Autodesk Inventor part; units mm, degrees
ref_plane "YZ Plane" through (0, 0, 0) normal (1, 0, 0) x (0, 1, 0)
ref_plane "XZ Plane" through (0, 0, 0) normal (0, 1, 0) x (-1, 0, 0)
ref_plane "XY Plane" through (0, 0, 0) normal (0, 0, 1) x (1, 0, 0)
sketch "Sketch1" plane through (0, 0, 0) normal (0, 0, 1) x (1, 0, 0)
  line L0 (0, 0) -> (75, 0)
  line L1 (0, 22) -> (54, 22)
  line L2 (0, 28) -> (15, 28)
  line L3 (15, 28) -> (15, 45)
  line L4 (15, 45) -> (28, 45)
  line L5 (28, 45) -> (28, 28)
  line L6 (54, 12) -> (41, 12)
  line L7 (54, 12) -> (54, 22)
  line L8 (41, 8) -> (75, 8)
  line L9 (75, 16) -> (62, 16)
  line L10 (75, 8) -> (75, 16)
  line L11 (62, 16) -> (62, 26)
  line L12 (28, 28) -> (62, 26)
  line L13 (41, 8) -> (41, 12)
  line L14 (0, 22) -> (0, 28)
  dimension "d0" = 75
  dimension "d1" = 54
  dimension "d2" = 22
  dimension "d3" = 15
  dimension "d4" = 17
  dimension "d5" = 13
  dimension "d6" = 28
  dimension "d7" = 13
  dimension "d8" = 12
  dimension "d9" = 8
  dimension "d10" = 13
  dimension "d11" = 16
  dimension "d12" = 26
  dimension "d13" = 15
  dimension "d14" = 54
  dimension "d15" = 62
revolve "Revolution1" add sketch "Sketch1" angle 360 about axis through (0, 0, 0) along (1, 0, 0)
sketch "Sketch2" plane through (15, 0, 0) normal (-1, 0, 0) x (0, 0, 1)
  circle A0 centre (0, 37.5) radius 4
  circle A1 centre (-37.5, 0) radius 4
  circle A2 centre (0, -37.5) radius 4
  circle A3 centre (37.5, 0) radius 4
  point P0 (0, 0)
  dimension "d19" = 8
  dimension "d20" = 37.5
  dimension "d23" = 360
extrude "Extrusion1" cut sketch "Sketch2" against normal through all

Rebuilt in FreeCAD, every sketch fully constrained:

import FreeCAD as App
import Part
import Sketcher

doc = App.newDocument("Part")
params = doc.addObject("Spreadsheet::Sheet", "Params")
for row, (alias, value) in enumerate([
    ("sketch1_width", "54 mm"),
    ("sketch1_width2", "13 mm"),
    ("sketch1_width3", "15 mm"),
    ("sketch1_height", "8 mm"),
    ("sketch1_height2", "17 mm"),
    ("revolution_angle", "360 deg"),
    ("sketch2_diameter", "8 mm"),
], start=1):
    params.set(f"A{row}", alias)
    params.set(f"B{row}", "=" + value)
    params.setAlias(f"B{row}", alias)

body = doc.addObject("PartDesign::Body", "Body")

# Sketch on XY plane
sketch1 = doc.addObject("Sketcher::SketchObject", "Sketch")
body.addObject(sketch1)
sketch1.AttachmentSupport = (doc.XY_Plane, [""])
sketch1.MapMode = "FlatFace"
sketch1.addGeometry([
    Part.LineSegment(App.Vector(0, 28, 0), App.Vector(0, 22, 0)),  # 0
    Part.LineSegment(App.Vector(0, 22, 0), App.Vector(54, 22, 0)),  # 1
    Part.LineSegment(App.Vector(54, 22, 0), App.Vector(54, 12, 0)),  # 2
    Part.LineSegment(App.Vector(54, 12, 0), App.Vector(41, 12, 0)),  # 3
    Part.LineSegment(App.Vector(41, 12, 0), App.Vector(41, 8, 0)),  # 4
    Part.LineSegment(App.Vector(41, 8, 0), App.Vector(75, 8, 0)),  # 5
    Part.LineSegment(App.Vector(75, 8, 0), App.Vector(75, 16, 0)),  # 6
    Part.LineSegment(App.Vector(75, 16, 0), App.Vector(62, 16, 0)),  # 7
    Part.LineSegment(App.Vector(62, 16, 0), App.Vector(62, 26, 0)),  # 8
    Part.LineSegment(App.Vector(62, 26, 0), App.Vector(28, 28, 0)),  # 9
    Part.LineSegment(App.Vector(28, 28, 0), App.Vector(28, 45, 0)),  # 10
    Part.LineSegment(App.Vector(28, 45, 0), App.Vector(15, 45, 0)),  # 11
    Part.LineSegment(App.Vector(15, 45, 0), App.Vector(15, 28, 0)),  # 12
    Part.LineSegment(App.Vector(15, 28, 0), App.Vector(0, 28, 0)),  # 13
], False)
sketch1.addConstraint([
    Sketcher.Constraint("Coincident", 0, 2, 1, 1),
    Sketcher.Constraint("Coincident", 1, 2, 2, 1),
    Sketcher.Constraint("Coincident", 2, 2, 3, 1),
    Sketcher.Constraint("Coincident", 3, 2, 4, 1),
    Sketcher.Constraint("Coincident", 4, 2, 5, 1),
    Sketcher.Constraint("Coincident", 5, 2, 6, 1),
    Sketcher.Constraint("Coincident", 6, 2, 7, 1),
    Sketcher.Constraint("Coincident", 7, 2, 8, 1),
    Sketcher.Constraint("Coincident", 8, 2, 9, 1),
    Sketcher.Constraint("Coincident", 9, 2, 10, 1),
    Sketcher.Constraint("Coincident", 10, 2, 11, 1),
    Sketcher.Constraint("Coincident", 11, 2, 12, 1),
    Sketcher.Constraint("Coincident", 12, 2, 13, 1),
    Sketcher.Constraint("Coincident", 13, 2, 0, 1),
    Sketcher.Constraint("Vertical", 0),
    Sketcher.Constraint("Horizontal", 1),
    Sketcher.Constraint("Vertical", 2),
    Sketcher.Constraint("Horizontal", 3),
    Sketcher.Constraint("Vertical", 4),
    Sketcher.Constraint("Horizontal", 5),
    Sketcher.Constraint("Vertical", 6),
    Sketcher.Constraint("Horizontal", 7),
    Sketcher.Constraint("Vertical", 8),
    Sketcher.Constraint("Vertical", 10),
    Sketcher.Constraint("Horizontal", 11),
    Sketcher.Constraint("Vertical", 12),
    Sketcher.Constraint("Horizontal", 13),
    Sketcher.Constraint("PointOnObject", 0, 2, -2),
    Sketcher.Constraint("Horizontal", 9, 2, 12, 2),
    Sketcher.Constraint("Equal", 3, 7),
    Sketcher.Constraint("Equal", 7, 11),
    Sketcher.Constraint("Equal", 2, 8),
    Sketcher.Constraint("DistanceX", 1, 1, 1, 2, 54.0),
    Sketcher.Constraint("DistanceX", 3, 2, 3, 1, 13.0),
    Sketcher.Constraint("DistanceX", 13, 2, 13, 1, 15.0),
    Sketcher.Constraint("DistanceY", 6, 1, 6, 2, 8.0),
    Sketcher.Constraint("DistanceY", 10, 1, 10, 2, 17.0),
    Sketcher.Constraint("DistanceY", -1, 1, 0, 2, 22.0),
    Sketcher.Constraint("DistanceY", -1, 1, 2, 2, 12.0),
    Sketcher.Constraint("DistanceY", -1, 1, 4, 2, 8.0),
    Sketcher.Constraint("DistanceX", -1, 1, 5, 2, 75.0),
    Sketcher.Constraint("DistanceY", -1, 1, 9, 2, 28.0),
])
sketch1.setExpression("Constraints[32]", "Params.sketch1_width")
sketch1.setExpression("Constraints[33]", "Params.sketch1_width2")
sketch1.setExpression("Constraints[34]", "Params.sketch1_width3")
sketch1.setExpression("Constraints[35]", "Params.sketch1_height")
sketch1.setExpression("Constraints[36]", "Params.sketch1_height2")
revolution = doc.addObject("PartDesign::Revolution", "Revolution")
body.addObject(revolution)
revolution.Profile = sketch1
revolution.ReferenceAxis = (sketch1, ["H_Axis"])
revolution.setExpression("Angle", "Params.revolution_angle")

# Sketch on YZ plane
sketch2 = doc.addObject("Sketcher::SketchObject", "Sketch001")
body.addObject(sketch2)
sketch2.AttachmentSupport = (doc.YZ_Plane, [""])
sketch2.MapMode = "FlatFace"
sketch2.AttachmentOffset = App.Placement(App.Vector(0, 0, 15), App.Rotation())
sketch2.addGeometry([
    Part.Circle(App.Vector(37.5, 0, 0), App.Vector(0, 0, 1), 4),
    Part.Circle(App.Vector(0, -37.5, 0), App.Vector(0, 0, 1), 4),
    Part.Circle(App.Vector(-37.5, 0, 0), App.Vector(0, 0, 1), 4),
    Part.Circle(App.Vector(0, 37.5, 0), App.Vector(0, 0, 1), 4),
], False)
sketch2.addConstraint([
    Sketcher.Constraint("Equal", 0, 1),
    Sketcher.Constraint("Equal", 1, 2),
    Sketcher.Constraint("Equal", 2, 3),
    Sketcher.Constraint("Symmetric", 0, 3, 2, 3, -1, 1),
    Sketcher.Constraint("Symmetric", 1, 3, 3, 3, -1, 1),
    Sketcher.Constraint("PointOnObject", 0, 3, -1),
    Sketcher.Constraint("PointOnObject", 1, 3, -2),
    Sketcher.Constraint("Diameter", 0, 8.0),
    Sketcher.Constraint("DistanceX", -1, 1, 0, 3, 37.5),
    Sketcher.Constraint("DistanceY", 1, 3, -1, 1, 37.5),
])
sketch2.setExpression("Constraints[7]", "Params.sketch2_diameter")
pocket1 = doc.addObject("PartDesign::Pocket", "Pocket")
body.addObject(pocket1)
pocket1.Profile = sketch2
pocket1.Type = "ThroughAll"
pocket1.Reversed = True

doc.recompute()
